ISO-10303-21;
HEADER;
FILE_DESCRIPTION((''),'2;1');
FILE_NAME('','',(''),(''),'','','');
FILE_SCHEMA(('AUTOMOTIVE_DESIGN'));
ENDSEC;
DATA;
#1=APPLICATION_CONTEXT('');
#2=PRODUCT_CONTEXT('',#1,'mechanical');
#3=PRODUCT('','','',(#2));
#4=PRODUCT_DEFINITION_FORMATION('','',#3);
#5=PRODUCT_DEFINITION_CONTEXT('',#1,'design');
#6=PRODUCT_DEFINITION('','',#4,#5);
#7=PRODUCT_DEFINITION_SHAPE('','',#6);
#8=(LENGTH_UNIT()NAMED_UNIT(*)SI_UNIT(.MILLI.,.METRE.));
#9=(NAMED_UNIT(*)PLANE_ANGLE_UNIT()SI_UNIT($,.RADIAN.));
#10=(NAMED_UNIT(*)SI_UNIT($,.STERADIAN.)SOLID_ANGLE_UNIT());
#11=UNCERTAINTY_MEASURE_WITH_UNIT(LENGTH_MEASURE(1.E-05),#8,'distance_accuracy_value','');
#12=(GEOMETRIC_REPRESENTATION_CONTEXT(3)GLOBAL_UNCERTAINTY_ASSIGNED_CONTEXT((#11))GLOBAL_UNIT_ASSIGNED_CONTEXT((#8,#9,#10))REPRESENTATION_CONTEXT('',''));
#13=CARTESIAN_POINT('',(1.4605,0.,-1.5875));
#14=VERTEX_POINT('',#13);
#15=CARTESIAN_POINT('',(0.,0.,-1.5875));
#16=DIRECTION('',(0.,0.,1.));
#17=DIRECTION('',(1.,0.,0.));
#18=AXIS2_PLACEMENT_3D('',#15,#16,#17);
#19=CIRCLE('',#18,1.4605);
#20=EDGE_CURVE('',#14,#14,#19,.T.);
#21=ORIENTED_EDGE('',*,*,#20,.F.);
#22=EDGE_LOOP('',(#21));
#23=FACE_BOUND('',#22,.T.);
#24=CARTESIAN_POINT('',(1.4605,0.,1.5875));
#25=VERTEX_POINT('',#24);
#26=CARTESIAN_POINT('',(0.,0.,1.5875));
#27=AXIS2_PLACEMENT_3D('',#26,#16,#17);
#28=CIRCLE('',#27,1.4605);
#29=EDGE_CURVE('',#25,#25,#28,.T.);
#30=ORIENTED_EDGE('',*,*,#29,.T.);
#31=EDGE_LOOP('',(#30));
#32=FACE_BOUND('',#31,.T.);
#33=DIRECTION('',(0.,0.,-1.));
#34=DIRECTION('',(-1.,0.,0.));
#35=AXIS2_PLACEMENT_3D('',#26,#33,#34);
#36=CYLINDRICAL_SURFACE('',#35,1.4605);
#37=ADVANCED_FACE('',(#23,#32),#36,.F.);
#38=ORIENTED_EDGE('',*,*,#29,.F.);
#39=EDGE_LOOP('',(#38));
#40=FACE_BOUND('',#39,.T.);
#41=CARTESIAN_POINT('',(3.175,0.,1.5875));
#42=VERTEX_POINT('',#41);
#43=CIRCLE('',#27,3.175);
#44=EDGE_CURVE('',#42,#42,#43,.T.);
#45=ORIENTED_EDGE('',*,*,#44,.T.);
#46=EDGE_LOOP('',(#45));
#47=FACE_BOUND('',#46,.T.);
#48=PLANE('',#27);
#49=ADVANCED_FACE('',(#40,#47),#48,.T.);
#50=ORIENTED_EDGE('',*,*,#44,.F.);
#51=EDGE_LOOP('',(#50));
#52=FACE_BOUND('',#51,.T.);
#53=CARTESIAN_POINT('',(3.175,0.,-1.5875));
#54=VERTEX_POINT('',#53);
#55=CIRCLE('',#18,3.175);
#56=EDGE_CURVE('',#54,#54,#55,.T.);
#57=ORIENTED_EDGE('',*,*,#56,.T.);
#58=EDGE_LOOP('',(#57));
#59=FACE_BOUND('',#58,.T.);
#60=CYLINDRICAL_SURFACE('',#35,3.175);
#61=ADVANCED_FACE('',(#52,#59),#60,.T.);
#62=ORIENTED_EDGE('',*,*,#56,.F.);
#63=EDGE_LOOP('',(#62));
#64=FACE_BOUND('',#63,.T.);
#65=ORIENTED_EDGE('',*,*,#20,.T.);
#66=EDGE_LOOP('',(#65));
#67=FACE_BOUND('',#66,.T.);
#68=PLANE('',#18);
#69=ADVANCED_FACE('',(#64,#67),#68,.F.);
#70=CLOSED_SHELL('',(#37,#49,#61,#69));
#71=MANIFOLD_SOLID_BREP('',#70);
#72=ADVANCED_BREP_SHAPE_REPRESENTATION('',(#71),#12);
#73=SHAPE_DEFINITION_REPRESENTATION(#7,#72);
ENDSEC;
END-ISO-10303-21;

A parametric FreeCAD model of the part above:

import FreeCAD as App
import Part
import Sketcher
from FreeCAD import Vector
Q = App.Units.Quantity

doc = App.newDocument("Part")
body = doc.addObject("PartDesign::Body", "Body")

# Sketch on XY plane
sketch1 = body.newObject("Sketcher::SketchObject", "Sketch")
sketch1.AttachmentSupport = (doc.getObject("XY_Plane"), [""])
sketch1.MapMode = "FlatFace"
sketch1.addGeometry([
    Part.Circle(Vector(0, 0, 0), Vector(0, 0, 1), 3.2),
    Part.Circle(Vector(0, 0, 0), Vector(0, 0, 1), 1.5),
], False)
sketch1.addConstraint([
    Sketcher.Constraint("Coincident", 0, 3, -1, 1),
    Sketcher.Constraint("Coincident", 1, 3, -1, 1),
    Sketcher.Constraint("Diameter", 0, Q("0.25 in")),
    Sketcher.Constraint("Diameter", 1, Q("0.115 in")),
])
pad1 = body.newObject("PartDesign::Pad", "Pad")
pad1.Profile = sketch1
pad1.Length = Q("0.125 in")
pad1.Midplane = True

doc.recompute()
